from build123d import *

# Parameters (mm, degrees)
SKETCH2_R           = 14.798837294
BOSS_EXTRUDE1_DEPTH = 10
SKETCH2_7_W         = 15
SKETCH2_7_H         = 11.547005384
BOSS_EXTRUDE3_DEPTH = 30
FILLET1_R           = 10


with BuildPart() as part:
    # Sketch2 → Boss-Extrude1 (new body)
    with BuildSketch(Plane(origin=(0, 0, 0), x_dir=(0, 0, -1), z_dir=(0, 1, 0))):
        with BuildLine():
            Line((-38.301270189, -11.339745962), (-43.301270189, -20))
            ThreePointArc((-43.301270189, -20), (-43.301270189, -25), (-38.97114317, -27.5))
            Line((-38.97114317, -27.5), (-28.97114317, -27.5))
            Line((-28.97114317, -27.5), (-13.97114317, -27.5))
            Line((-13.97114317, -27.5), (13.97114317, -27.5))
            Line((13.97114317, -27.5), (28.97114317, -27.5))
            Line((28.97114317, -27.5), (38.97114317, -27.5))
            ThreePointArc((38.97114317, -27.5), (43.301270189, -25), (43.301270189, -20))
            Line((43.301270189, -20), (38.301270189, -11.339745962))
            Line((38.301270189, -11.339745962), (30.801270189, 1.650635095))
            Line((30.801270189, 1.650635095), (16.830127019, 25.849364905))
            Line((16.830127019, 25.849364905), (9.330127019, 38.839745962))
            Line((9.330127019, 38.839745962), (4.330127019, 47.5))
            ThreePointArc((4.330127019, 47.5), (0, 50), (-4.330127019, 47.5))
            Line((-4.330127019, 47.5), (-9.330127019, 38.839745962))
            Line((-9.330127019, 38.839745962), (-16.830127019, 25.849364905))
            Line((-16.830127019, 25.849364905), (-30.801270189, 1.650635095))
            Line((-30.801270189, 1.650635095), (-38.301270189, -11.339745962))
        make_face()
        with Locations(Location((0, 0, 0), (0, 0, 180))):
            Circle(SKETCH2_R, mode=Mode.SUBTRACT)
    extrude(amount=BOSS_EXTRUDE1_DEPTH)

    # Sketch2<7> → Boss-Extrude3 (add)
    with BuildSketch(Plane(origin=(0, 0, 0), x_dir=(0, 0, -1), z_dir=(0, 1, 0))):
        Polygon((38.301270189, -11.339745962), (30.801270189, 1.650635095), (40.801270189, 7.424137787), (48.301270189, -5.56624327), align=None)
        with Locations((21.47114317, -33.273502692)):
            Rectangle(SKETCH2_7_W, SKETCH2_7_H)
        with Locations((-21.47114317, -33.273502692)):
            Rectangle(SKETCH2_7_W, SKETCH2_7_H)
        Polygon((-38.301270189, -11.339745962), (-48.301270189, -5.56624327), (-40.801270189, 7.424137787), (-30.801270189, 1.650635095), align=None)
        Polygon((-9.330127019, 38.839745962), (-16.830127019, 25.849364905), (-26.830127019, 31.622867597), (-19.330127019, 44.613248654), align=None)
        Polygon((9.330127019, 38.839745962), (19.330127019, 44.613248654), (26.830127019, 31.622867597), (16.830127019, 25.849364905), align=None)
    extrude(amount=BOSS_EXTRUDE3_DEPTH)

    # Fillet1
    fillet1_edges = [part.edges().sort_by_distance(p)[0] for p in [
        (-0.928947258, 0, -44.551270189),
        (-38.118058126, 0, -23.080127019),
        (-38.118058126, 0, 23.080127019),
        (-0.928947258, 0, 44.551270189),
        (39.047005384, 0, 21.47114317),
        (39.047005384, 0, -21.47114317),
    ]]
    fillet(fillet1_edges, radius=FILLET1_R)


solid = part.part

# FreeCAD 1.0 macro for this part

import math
import FreeCAD as App
import Part
import Sketcher

V = App.Vector
Q = App.Units.Quantity


def edges_at(feature, points):
    """Names of the edges that pass closest to the given points."""
    edges = feature.Shape.Edges
    near = lambda p: min(range(len(edges)), key=lambda i: edges[i].distToShape(Part.Vertex(*p))[0])
    return sorted({f"Edge{near(p) + 1}" for p in points})

doc = App.newDocument("Part")
params = doc.addObject("Spreadsheet::Sheet", "Params")
for row, (alias, value) in enumerate([
    ("sketch1_radius", "5 mm"),
    ("sketch1_length", "25 mm"),
    ("pad1_length", "10 mm"),
    ("sketch2_height", "15 mm"),
    ("sketch2_length", "15 mm"),
    ("pad2_length", "30 mm"),
    ("fillet_radius", "10 mm"),
], start=1):
    params.set(f"A{row}", alias)
    params.set(f"B{row}", "=" + value)
    params.setAlias(f"B{row}", alias)

body = doc.addObject("PartDesign::Body", "Body")

# Sketch on XZ plane
sketch1 = doc.addObject("Sketcher::SketchObject", "Sketch")
body.addObject(sketch1)
sketch1.AttachmentSupport = (doc.XZ_Plane, [""])
sketch1.MapMode = "FlatFace"
sketch1.addGeometry([
    Part.ArcOfCircle(Part.Circle(V(22, 39, 0), V(0, 0, 1), 5), math.radians(0), math.radians(120)),  # 0
    Part.LineSegment(V(28, 39, 0), V(28, -39, 0)),  # 1
    Part.ArcOfCircle(Part.Circle(V(22, -39, 0), V(0, 0, 1), 5), math.radians(-120), math.radians(0)),  # 2
    Part.LineSegment(V(20, -43, 0), V(-2, -31, 0)),  # 3
    Part.LineSegment(V(-2, -31, 0), V(-26, -17, 0)),  # 4
    Part.LineSegment(V(-26, -17, 0), V(-48, -4, 0)),  # 5
    Part.ArcOfCircle(Part.Circle(V(-45, 0, 0), V(0, 0, 1), 5), math.radians(120), math.radians(240)),  # 6
    Part.LineSegment(V(-48, 4, 0), V(-26, 17, 0)),  # 7
    Part.LineSegment(V(-26, 17, 0), V(-2, 31, 0)),  # 8
    Part.LineSegment(V(-2, 31, 0), V(20, 43, 0)),  # 9
    Part.Circle(V(0, 0, 0), V(0, 0, 1), 15),  # 10
], False)
sketch1.addConstraint([
    Sketcher.Constraint("Tangent", 0, 1, 1, 1),
    Sketcher.Constraint("Tangent", 1, 2, 2, 2),
    Sketcher.Constraint("Tangent", 2, 1, 3, 1),
    Sketcher.Constraint("Coincident", 3, 2, 4, 1),
    Sketcher.Constraint("Coincident", 4, 2, 5, 1),
    Sketcher.Constraint("Tangent", 5, 2, 6, 2),
    Sketcher.Constraint("Tangent", 6, 1, 7, 1),
    Sketcher.Constraint("Coincident", 7, 2, 8, 1),
    Sketcher.Constraint("Coincident", 8, 2, 9, 1),
    Sketcher.Constraint("Tangent", 9, 2, 0, 2),
    Sketcher.Constraint("Vertical", 1),
    Sketcher.Constraint("Coincident", 10, 3, -1, 1),
    Sketcher.Constraint("Equal", 0, 2),
    Sketcher.Constraint("Equal", 2, 6),
    Sketcher.Constraint("Symmetric", 5, 2, 6, 1, -1),
    Sketcher.Constraint("Symmetric", 3, 2, 8, 2, -1),
    Sketcher.Constraint("Parallel", 3, 4),
    Sketcher.Constraint("Parallel", 4, 5),
    Sketcher.Constraint("Parallel", 8, 9),
    Sketcher.Constraint("Vertical", 4, 2, 7, 2),
    Sketcher.Constraint("Equal", 3, 5),
    Sketcher.Constraint("Radius", 0, Q("5 mm")),
    Sketcher.Constraint("Angle", 3, Q("150 deg")),
    Sketcher.Constraint("Distance", 3, Q("25 mm")),
    Sketcher.Constraint("DistanceX", 6, 3, -1, 1, Q("45 mm")),
    Sketcher.Constraint("DistanceX", -1, 1, 2, 1, Q("20 mm")),
    Sketcher.Constraint("Diameter", 10, Q("29.597675 mm")),
])
sketch1.setExpression("Constraints[21]", "Params.sketch1_radius")
sketch1.setExpression("Constraints[23]", "Params.sketch1_length")
pad1 = doc.addObject("PartDesign::Pad", "Pad")
body.addObject(pad1)
pad1.Profile = sketch1
pad1.setExpression("Length", "Params.pad1_length")
pad1.Reversed = True

# Sketch on XZ plane
sketch2 = doc.addObject("Sketcher::SketchObject", "Sketch001")
body.addObject(sketch2)
sketch2.AttachmentSupport = (doc.XZ_Plane, [""])
sketch2.MapMode = "FlatFace"
sketch2.addGeometry([
    Part.LineSegment(V(-2, -31, 0), V(11, -38, 0)),  # 0
    Part.LineSegment(V(11, -38, 0), V(6, -48, 0)),  # 1
    Part.LineSegment(V(6, -48, 0), V(-7, -41, 0)),  # 2
    Part.LineSegment(V(-7, -41, 0), V(-2, -31, 0)),  # 3
    Part.LineSegment(V(28, -14, 0), V(39, -14, 0)),  # 4
    Part.LineSegment(V(39, -14, 0), V(39, -29, 0)),  # 5
    Part.LineSegment(V(39, -29, 0), V(28, -29, 0)),  # 6
    Part.LineSegment(V(28, -29, 0), V(28, -14, 0)),  # 7
    Part.LineSegment(V(28, 29, 0), V(39, 29, 0)),  # 8
    Part.LineSegment(V(39, 29, 0), V(39, 14, 0)),  # 9
    Part.LineSegment(V(39, 14, 0), V(28, 14, 0)),  # 10
    Part.LineSegment(V(28, 14, 0), V(28, 29, 0)),  # 11
    Part.LineSegment(V(6, 48, 0), V(11, 38, 0)),  # 12
    Part.LineSegment(V(11, 38, 0), V(-2, 31, 0)),  # 13
    Part.LineSegment(V(-2, 31, 0), V(-7, 41, 0)),  # 14
    Part.LineSegment(V(-7, 41, 0), V(6, 48, 0)),  # 15
    Part.LineSegment(V(-26, 17, 0), V(-39, 9, 0)),  # 16
    Part.LineSegment(V(-39, 9, 0), V(-45, 19, 0)),  # 17
    Part.LineSegment(V(-45, 19, 0), V(-32, 27, 0)),  # 18
    Part.LineSegment(V(-32, 27, 0), V(-26, 17, 0)),  # 19
    Part.LineSegment(V(-45, -19, 0), V(-39, -9, 0)),  # 20
    Part.LineSegment(V(-39, -9, 0), V(-26, -17, 0)),  # 21
    Part.LineSegment(V(-26, -17, 0), V(-32, -27, 0)),  # 22
    Part.LineSegment(V(-32, -27, 0), V(-45, -19, 0)),  # 23
], False)
sketch2.addConstraint([
    Sketcher.Constraint("Coincident", 0, 2, 1, 1),
    Sketcher.Constraint("Coincident", 1, 2, 2, 1),
    Sketcher.Constraint("Coincident", 2, 2, 3, 1),
    Sketcher.Constraint("Coincident", 3, 2, 0, 1),
    Sketcher.Constraint("Coincident", 4, 2, 5, 1),
    Sketcher.Constraint("Coincident", 5, 2, 6, 1),
    Sketcher.Constraint("Coincident", 6, 2, 7, 1),
    Sketcher.Constraint("Coincident", 7, 2, 4, 1),
    Sketcher.Constraint("Coincident", 8, 2, 9, 1),
    Sketcher.Constraint("Coincident", 9, 2, 10, 1),
    Sketcher.Constraint("Coincident", 10, 2, 11, 1),
    Sketcher.Constraint("Coincident", 11, 2, 8, 1),
    Sketcher.Constraint("Coincident", 12, 2, 13, 1),
    Sketcher.Constraint("Coincident", 13, 2, 14, 1),
    Sketcher.Constraint("Coincident", 14, 2, 15, 1),
    Sketcher.Constraint("Coincident", 15, 2, 12, 1),
    Sketcher.Constraint("Coincident", 16, 2, 17, 1),
    Sketcher.Constraint("Coincident", 17, 2, 18, 1),
    Sketcher.Constraint("Coincident", 18, 2, 19, 1),
    Sketcher.Constraint("Coincident", 19, 2, 16, 1),
    Sketcher.Constraint("Coincident", 20, 2, 21, 1),
    Sketcher.Constraint("Coincident", 21, 2, 22, 1),
    Sketcher.Constraint("Coincident", 22, 2, 23, 1),
    Sketcher.Constraint("Coincident", 23, 2, 20, 1),
    Sketcher.Constraint("Horizontal", 4),
    Sketcher.Constraint("Vertical", 5),
    Sketcher.Constraint("Horizontal", 6),
    Sketcher.Constraint("Vertical", 7),
    Sketcher.Constraint("Horizontal", 8),
    Sketcher.Constraint("Vertical", 9),
    Sketcher.Constraint("Horizontal", 10),
    Sketcher.Constraint("Vertical", 11),
    Sketcher.Constraint("Symmetric", 5, 2, 8, 2, -1),
    Sketcher.Constraint("Symmetric", 7, 2, 10, 2, -1),
    Sketcher.Constraint("Symmetric", 0, 2, 12, 2, -1),
    Sketcher.Constraint("Symmetric", 3, 2, 13, 2, -1),
    Sketcher.Constraint("Symmetric", 2, 2, 14, 2, -1),
    Sketcher.Constraint("Symmetric", 1, 2, 15, 2, -1),
    Sketcher.Constraint("Symmetric", 16, 2, 20, 2, -1),
    Sketcher.Constraint("Symmetric", 19, 2, 21, 2, -1),
    Sketcher.Constraint("Symmetric", 18, 2, 22, 2, -1),
    Sketcher.Constraint("Symmetric", 17, 2, 23, 2, -1),
    Sketcher.Constraint("Perpendicular", 0, 1),
    Sketcher.Constraint("Perpendicular", 1, 2),
    Sketcher.Constraint("Perpendicular", 2, 3),
    Sketcher.Constraint("Parallel", 15, 16),
    Sketcher.Constraint("Perpendicular", 16, 17),
    Sketcher.Constraint("Perpendicular", 17, 18),
    Sketcher.Constraint("Perpendicular", 18, 19),
    Sketcher.Constraint("Equal", 15, 16),
    Sketcher.Constraint("Equal", 14, 17),
    Sketcher.Constraint("DistanceY", 5, 2, 5, 1, Q("15 mm")),
    Sketcher.Constraint("Angle", 0, Q("-30 deg")),
    Sketcher.Constraint("Distance", 0, Q("15 mm")),
    Sketcher.Constraint("DistanceY", 1, 2, 0, 2, Q("10 mm")),
    Sketcher.Constraint("DistanceX", -1, 1, 6, 2, Q("27.5 mm")),
    Sketcher.Constraint("DistanceX", 4, 1, 4, 2, Q("11.547005 mm")),
    Sketcher.Constraint("DistanceY", 0, 2, -1, 1, Q("38.30127 mm")),
    Sketcher.Constraint("DistanceX", 17, 2, -1, 1, Q("44.613249 mm")),
    Sketcher.Constraint("DistanceX", 0, 2, 4, 2, Q("27.707259 mm")),
    Sketcher.Constraint("DistanceY", 4, 2, -1, 1, Q("13.971143 mm")),
    Sketcher.Constraint("DistanceY", -1, 1, 16, 2, Q("9.330127 mm")),
])
sketch2.setExpression("Constraints[51]", "Params.sketch2_height")
sketch2.setExpression("Constraints[53]", "Params.sketch2_length")
pad2 = doc.addObject("PartDesign::Pad", "Pad001")
body.addObject(pad2)
pad2.Profile = sketch2
pad2.setExpression("Length", "Params.pad2_length")
pad2.Reversed = True
doc.recompute()

fillet = doc.addObject("PartDesign::Fillet", "Fillet")
body.addObject(fillet)
fillet.Base = (pad2, edges_at(pad2, [
    (-0.929, 0, -44.551),
    (-38.118, 0, -23.08),
    (-38.118, 0, 23.08),
    (-0.929, 0, 44.551),
    (39.047, 0, 21.471),
    (39.047, 0, -21.471),
]))
fillet.setExpression("Radius", "Params.fillet_radius")

doc.recompute()
